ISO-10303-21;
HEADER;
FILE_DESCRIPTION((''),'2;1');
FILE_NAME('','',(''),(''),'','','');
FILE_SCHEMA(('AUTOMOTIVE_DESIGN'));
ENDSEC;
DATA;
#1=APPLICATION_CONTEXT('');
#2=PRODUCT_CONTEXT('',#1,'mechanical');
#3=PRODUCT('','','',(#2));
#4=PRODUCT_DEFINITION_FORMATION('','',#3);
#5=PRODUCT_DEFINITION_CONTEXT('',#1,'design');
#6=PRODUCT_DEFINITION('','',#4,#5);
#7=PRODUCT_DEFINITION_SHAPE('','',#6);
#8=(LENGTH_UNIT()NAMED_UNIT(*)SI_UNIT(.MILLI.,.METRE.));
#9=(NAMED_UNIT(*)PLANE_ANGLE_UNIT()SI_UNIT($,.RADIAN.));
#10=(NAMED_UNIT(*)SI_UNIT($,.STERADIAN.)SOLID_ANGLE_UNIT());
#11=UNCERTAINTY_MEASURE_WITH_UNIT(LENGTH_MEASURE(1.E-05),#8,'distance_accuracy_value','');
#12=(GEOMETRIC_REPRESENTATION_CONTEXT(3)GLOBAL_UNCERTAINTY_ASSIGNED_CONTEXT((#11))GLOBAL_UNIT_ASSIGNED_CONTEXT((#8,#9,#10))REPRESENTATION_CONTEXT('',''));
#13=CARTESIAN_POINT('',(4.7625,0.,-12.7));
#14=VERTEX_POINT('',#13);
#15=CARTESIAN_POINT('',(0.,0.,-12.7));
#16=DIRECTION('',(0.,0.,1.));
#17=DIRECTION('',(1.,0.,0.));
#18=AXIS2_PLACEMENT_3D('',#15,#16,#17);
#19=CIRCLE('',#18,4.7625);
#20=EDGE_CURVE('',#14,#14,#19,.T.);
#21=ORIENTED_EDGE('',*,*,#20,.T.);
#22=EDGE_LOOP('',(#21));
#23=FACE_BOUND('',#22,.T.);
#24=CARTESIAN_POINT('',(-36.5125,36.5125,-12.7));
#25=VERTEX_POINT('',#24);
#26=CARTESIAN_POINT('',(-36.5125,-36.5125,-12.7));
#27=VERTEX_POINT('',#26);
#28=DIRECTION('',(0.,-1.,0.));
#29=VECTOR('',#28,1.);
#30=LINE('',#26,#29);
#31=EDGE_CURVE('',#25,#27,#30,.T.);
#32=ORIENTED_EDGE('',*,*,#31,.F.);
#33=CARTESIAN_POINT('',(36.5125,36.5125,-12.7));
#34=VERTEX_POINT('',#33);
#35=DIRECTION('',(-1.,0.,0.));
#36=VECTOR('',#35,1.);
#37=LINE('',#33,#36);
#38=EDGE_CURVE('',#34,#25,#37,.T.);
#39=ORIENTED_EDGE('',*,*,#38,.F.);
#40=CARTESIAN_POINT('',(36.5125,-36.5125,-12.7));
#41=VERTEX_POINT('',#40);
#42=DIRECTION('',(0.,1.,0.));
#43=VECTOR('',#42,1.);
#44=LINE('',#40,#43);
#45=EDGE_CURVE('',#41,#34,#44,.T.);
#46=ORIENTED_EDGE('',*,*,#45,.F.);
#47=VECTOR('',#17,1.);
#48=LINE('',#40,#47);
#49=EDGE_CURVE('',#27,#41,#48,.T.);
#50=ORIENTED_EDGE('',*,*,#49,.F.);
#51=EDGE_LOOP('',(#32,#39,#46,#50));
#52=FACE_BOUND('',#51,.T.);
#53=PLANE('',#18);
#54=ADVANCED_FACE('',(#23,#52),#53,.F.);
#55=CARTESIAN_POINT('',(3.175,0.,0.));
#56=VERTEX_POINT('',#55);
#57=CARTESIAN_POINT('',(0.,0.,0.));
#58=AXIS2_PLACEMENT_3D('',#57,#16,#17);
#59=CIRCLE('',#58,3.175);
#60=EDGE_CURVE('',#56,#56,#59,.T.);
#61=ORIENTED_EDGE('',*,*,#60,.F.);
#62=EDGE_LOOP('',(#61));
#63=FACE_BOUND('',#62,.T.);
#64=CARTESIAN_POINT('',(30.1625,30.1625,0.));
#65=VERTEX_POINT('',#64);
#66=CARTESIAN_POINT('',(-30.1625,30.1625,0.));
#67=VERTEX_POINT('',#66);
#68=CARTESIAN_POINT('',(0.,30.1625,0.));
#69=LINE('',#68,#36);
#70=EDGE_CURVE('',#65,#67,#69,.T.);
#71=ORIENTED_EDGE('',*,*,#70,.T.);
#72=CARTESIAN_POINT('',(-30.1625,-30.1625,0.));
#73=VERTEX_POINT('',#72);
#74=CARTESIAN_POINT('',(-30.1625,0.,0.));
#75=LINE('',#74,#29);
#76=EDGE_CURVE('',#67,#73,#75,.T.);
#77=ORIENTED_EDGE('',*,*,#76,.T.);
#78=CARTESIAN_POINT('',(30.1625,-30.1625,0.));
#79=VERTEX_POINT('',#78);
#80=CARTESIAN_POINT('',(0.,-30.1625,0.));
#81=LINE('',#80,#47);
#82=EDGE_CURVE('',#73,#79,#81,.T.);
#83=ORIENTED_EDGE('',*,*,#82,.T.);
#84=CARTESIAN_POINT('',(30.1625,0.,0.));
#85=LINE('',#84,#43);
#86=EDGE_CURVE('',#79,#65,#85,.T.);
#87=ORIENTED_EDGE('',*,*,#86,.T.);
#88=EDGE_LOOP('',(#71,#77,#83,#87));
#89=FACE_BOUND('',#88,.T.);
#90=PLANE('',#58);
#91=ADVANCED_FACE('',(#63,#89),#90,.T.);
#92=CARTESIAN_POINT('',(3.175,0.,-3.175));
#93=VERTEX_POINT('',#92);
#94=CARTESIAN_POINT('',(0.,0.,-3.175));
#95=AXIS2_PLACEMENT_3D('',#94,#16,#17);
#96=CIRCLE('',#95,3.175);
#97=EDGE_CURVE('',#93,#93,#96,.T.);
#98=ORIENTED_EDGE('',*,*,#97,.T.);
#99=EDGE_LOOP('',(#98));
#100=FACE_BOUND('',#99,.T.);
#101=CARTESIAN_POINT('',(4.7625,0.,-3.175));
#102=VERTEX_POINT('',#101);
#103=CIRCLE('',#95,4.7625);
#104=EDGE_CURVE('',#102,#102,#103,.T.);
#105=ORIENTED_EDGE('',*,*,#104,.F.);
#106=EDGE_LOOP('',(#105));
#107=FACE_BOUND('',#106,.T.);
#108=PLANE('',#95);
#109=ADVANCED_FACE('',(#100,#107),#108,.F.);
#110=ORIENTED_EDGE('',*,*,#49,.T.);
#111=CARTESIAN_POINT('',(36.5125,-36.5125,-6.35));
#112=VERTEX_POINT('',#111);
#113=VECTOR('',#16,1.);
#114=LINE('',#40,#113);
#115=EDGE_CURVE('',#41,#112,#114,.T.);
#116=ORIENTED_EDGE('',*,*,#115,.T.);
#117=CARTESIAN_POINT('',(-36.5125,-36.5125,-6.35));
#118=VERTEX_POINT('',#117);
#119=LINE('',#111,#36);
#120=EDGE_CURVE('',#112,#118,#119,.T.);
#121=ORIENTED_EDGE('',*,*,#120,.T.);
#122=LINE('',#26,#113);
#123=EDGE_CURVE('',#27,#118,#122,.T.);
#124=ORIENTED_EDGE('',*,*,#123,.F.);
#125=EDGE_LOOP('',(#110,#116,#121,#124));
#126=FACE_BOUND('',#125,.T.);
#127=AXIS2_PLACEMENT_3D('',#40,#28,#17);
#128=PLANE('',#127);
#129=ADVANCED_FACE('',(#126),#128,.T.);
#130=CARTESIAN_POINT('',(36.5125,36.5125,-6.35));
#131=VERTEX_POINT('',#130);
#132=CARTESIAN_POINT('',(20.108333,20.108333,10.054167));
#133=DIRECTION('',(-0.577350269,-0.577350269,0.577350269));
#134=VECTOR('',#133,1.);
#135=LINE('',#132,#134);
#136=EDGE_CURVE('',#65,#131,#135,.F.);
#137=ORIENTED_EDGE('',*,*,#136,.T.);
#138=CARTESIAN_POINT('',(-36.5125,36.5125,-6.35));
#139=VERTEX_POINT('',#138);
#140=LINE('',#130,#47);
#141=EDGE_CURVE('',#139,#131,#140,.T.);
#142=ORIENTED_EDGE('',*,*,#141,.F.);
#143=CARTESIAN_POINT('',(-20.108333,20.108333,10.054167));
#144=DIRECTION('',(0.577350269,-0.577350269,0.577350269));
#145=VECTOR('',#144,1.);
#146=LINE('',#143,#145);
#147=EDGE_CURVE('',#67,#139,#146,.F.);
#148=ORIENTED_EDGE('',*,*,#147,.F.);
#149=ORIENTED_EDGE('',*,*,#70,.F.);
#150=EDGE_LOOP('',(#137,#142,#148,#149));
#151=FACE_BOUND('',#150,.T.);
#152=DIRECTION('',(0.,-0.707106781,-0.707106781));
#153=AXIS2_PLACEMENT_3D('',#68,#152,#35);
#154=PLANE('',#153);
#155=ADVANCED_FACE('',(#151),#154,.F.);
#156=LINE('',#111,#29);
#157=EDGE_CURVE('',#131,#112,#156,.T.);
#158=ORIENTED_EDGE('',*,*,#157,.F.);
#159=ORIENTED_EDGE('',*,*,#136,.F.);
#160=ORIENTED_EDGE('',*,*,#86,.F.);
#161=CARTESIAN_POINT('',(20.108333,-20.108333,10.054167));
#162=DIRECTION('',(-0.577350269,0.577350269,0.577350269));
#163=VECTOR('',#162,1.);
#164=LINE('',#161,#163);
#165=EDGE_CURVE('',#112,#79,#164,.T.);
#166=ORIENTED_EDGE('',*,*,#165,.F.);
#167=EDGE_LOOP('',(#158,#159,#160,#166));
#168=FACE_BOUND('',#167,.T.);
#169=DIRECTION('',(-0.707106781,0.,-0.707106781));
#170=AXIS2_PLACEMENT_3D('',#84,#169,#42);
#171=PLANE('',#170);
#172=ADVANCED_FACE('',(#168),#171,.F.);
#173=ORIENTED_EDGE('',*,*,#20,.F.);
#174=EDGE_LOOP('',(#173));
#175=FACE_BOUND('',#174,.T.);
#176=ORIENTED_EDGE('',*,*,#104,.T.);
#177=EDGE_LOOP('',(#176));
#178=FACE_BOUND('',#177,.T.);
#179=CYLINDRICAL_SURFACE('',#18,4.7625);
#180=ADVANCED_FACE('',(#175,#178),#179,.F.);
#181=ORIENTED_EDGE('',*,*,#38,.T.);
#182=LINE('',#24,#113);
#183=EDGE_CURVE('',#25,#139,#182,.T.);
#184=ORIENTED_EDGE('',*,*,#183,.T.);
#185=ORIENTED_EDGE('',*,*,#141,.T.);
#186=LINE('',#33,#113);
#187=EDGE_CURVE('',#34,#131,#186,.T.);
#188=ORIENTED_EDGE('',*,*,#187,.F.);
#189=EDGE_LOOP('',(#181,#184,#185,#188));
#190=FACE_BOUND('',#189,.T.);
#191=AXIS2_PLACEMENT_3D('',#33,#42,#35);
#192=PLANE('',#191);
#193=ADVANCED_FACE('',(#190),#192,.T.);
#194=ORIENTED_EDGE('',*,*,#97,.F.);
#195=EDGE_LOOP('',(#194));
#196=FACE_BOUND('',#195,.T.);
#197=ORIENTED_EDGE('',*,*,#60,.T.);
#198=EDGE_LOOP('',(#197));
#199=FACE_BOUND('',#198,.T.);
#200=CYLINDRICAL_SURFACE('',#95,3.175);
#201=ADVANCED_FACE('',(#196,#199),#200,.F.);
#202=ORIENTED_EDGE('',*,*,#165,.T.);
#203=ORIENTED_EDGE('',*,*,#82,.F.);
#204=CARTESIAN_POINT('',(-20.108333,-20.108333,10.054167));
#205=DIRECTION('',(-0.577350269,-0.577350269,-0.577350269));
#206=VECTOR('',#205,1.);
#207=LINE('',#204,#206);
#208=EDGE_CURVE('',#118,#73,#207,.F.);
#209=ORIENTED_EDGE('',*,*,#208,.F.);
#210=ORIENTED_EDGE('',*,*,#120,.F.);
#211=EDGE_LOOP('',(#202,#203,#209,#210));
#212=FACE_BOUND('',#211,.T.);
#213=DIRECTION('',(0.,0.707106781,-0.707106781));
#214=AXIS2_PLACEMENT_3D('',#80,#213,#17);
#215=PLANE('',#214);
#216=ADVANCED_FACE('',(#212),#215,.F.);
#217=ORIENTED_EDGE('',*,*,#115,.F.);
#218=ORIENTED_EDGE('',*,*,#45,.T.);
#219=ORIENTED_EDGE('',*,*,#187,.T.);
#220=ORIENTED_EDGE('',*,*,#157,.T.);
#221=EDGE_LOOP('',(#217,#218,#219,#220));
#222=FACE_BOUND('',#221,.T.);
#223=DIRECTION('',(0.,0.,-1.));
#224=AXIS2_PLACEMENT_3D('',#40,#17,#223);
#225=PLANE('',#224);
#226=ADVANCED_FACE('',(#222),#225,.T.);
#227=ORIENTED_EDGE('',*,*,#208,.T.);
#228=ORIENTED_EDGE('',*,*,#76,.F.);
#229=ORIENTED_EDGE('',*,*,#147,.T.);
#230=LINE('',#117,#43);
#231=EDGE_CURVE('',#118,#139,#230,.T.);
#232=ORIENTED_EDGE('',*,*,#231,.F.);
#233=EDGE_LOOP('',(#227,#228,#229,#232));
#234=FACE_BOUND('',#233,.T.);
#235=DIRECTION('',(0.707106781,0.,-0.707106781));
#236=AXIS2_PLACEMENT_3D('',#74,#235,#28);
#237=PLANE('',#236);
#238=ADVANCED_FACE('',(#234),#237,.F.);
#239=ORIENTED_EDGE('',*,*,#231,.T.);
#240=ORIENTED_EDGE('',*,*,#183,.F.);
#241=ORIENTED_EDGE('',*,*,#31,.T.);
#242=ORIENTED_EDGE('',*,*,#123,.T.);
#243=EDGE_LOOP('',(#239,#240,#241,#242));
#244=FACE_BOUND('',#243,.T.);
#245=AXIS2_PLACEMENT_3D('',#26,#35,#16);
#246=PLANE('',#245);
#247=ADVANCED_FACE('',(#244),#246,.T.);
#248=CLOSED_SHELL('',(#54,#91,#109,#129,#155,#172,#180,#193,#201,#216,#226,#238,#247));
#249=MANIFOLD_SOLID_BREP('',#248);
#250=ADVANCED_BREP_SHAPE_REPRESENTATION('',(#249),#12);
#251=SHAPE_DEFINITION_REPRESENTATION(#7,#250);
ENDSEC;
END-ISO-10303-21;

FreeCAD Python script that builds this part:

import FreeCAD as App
import Part
import Sketcher
from FreeCAD import Vector
Q = App.Units.Quantity


def edges_at(feature, points):
    """Names of the edges that pass closest to the given points."""
    edges = feature.Shape.Edges
    near = lambda p: min(range(len(edges)), key=lambda i: edges[i].distToShape(Part.Vertex(*p))[0])
    return sorted({f"Edge{near(p) + 1}" for p in points})

doc = App.newDocument("Part")
body = doc.addObject("PartDesign::Body", "Body")

# Sketch on XY plane
sketch1 = body.newObject("Sketcher::SketchObject", "Sketch")
sketch1.AttachmentSupport = (doc.getObject("XY_Plane"), [""])
sketch1.MapMode = "FlatFace"
sketch1.addGeometry([
    Part.LineSegment(Vector(-36.5125, 36.5125, 0), Vector(-36.5125, -36.5125, 0)),
    Part.LineSegment(Vector(-36.5125, -36.5125, 0), Vector(36.5125, -36.5125, 0)),
    Part.LineSegment(Vector(36.5125, -36.5125, 0), Vector(36.5125, 36.5125, 0)),
    Part.LineSegment(Vector(36.5125, 36.5125, 0), Vector(-36.5125, 36.5125, 0)),
], False)
sketch1.addConstraint([
    Sketcher.Constraint("Coincident", 0, 2, 1, 1),
    Sketcher.Constraint("Coincident", 1, 2, 2, 1),
    Sketcher.Constraint("Coincident", 2, 2, 3, 1),
    Sketcher.Constraint("Coincident", 3, 2, 0, 1),
    Sketcher.Constraint("Vertical", 0),
    Sketcher.Constraint("Horizontal", 1),
    Sketcher.Constraint("Vertical", 2),
    Sketcher.Constraint("Horizontal", 3),
    Sketcher.Constraint("Symmetric", 0, 2, 2, 2, -1, 1),
    Sketcher.Constraint("Equal", 3, 0),
    Sketcher.Constraint("DistanceX", 1, 1, 1, 2, Q("2.875 in")),
])
pad1 = body.newObject("PartDesign::Pad", "Pad")
pad1.Profile = sketch1
pad1.Length = Q("0.5 in")
pad1.Reversed = True

# Sketch on XY plane
sketch2 = body.newObject("Sketcher::SketchObject", "Sketch001")
sketch2.AttachmentSupport = (doc.getObject("XY_Plane"), [""])
sketch2.MapMode = "FlatFace"
sketch2.addGeometry(Part.Circle(Vector(0, 0, 0), Vector(0, 0, 1), 3.175), False)
sketch2.addConstraint([
    Sketcher.Constraint("Coincident", 0, 3, -1, 1),
    Sketcher.Constraint("Diameter", 0, Q("0.25 in")),
])
pocket1 = body.newObject("PartDesign::Pocket", "Pocket")
pocket1.Profile = sketch2
pocket1.Length = Q("0.125 in")

# Sketch on XY plane
sketch3 = body.newObject("Sketcher::SketchObject", "Sketch002")
sketch3.AttachmentSupport = (doc.getObject("XY_Plane"), [""])
sketch3.MapMode = "FlatFace"
sketch3.AttachmentOffset = App.Placement(Vector(0, 0, -0.125 * 25.4), App.Rotation())
sketch3.addGeometry(Part.Circle(Vector(0, 0, 0), Vector(0, 0, 1), 4.7625), False)
sketch3.addConstraint([
    Sketcher.Constraint("Coincident", 0, 3, -1, 1),
    Sketcher.Constraint("Diameter", 0, Q("0.375 in")),
])
pocket2 = body.newObject("PartDesign::Pocket", "Pocket001")
pocket2.Profile = sketch3
pocket2.Type = "ThroughAll"
doc.recompute()

chamfer = body.newObject("PartDesign::Chamfer", "Chamfer")
chamfer.Base = (pocket2, edges_at(pocket2, [
    (0, 36.513, 0),
    (36.513, 0, 0),
    (0, -36.513, 0),
    (-36.513, 0, 0),
]))
chamfer.Size = Q("0.25 in")

doc.recompute()
